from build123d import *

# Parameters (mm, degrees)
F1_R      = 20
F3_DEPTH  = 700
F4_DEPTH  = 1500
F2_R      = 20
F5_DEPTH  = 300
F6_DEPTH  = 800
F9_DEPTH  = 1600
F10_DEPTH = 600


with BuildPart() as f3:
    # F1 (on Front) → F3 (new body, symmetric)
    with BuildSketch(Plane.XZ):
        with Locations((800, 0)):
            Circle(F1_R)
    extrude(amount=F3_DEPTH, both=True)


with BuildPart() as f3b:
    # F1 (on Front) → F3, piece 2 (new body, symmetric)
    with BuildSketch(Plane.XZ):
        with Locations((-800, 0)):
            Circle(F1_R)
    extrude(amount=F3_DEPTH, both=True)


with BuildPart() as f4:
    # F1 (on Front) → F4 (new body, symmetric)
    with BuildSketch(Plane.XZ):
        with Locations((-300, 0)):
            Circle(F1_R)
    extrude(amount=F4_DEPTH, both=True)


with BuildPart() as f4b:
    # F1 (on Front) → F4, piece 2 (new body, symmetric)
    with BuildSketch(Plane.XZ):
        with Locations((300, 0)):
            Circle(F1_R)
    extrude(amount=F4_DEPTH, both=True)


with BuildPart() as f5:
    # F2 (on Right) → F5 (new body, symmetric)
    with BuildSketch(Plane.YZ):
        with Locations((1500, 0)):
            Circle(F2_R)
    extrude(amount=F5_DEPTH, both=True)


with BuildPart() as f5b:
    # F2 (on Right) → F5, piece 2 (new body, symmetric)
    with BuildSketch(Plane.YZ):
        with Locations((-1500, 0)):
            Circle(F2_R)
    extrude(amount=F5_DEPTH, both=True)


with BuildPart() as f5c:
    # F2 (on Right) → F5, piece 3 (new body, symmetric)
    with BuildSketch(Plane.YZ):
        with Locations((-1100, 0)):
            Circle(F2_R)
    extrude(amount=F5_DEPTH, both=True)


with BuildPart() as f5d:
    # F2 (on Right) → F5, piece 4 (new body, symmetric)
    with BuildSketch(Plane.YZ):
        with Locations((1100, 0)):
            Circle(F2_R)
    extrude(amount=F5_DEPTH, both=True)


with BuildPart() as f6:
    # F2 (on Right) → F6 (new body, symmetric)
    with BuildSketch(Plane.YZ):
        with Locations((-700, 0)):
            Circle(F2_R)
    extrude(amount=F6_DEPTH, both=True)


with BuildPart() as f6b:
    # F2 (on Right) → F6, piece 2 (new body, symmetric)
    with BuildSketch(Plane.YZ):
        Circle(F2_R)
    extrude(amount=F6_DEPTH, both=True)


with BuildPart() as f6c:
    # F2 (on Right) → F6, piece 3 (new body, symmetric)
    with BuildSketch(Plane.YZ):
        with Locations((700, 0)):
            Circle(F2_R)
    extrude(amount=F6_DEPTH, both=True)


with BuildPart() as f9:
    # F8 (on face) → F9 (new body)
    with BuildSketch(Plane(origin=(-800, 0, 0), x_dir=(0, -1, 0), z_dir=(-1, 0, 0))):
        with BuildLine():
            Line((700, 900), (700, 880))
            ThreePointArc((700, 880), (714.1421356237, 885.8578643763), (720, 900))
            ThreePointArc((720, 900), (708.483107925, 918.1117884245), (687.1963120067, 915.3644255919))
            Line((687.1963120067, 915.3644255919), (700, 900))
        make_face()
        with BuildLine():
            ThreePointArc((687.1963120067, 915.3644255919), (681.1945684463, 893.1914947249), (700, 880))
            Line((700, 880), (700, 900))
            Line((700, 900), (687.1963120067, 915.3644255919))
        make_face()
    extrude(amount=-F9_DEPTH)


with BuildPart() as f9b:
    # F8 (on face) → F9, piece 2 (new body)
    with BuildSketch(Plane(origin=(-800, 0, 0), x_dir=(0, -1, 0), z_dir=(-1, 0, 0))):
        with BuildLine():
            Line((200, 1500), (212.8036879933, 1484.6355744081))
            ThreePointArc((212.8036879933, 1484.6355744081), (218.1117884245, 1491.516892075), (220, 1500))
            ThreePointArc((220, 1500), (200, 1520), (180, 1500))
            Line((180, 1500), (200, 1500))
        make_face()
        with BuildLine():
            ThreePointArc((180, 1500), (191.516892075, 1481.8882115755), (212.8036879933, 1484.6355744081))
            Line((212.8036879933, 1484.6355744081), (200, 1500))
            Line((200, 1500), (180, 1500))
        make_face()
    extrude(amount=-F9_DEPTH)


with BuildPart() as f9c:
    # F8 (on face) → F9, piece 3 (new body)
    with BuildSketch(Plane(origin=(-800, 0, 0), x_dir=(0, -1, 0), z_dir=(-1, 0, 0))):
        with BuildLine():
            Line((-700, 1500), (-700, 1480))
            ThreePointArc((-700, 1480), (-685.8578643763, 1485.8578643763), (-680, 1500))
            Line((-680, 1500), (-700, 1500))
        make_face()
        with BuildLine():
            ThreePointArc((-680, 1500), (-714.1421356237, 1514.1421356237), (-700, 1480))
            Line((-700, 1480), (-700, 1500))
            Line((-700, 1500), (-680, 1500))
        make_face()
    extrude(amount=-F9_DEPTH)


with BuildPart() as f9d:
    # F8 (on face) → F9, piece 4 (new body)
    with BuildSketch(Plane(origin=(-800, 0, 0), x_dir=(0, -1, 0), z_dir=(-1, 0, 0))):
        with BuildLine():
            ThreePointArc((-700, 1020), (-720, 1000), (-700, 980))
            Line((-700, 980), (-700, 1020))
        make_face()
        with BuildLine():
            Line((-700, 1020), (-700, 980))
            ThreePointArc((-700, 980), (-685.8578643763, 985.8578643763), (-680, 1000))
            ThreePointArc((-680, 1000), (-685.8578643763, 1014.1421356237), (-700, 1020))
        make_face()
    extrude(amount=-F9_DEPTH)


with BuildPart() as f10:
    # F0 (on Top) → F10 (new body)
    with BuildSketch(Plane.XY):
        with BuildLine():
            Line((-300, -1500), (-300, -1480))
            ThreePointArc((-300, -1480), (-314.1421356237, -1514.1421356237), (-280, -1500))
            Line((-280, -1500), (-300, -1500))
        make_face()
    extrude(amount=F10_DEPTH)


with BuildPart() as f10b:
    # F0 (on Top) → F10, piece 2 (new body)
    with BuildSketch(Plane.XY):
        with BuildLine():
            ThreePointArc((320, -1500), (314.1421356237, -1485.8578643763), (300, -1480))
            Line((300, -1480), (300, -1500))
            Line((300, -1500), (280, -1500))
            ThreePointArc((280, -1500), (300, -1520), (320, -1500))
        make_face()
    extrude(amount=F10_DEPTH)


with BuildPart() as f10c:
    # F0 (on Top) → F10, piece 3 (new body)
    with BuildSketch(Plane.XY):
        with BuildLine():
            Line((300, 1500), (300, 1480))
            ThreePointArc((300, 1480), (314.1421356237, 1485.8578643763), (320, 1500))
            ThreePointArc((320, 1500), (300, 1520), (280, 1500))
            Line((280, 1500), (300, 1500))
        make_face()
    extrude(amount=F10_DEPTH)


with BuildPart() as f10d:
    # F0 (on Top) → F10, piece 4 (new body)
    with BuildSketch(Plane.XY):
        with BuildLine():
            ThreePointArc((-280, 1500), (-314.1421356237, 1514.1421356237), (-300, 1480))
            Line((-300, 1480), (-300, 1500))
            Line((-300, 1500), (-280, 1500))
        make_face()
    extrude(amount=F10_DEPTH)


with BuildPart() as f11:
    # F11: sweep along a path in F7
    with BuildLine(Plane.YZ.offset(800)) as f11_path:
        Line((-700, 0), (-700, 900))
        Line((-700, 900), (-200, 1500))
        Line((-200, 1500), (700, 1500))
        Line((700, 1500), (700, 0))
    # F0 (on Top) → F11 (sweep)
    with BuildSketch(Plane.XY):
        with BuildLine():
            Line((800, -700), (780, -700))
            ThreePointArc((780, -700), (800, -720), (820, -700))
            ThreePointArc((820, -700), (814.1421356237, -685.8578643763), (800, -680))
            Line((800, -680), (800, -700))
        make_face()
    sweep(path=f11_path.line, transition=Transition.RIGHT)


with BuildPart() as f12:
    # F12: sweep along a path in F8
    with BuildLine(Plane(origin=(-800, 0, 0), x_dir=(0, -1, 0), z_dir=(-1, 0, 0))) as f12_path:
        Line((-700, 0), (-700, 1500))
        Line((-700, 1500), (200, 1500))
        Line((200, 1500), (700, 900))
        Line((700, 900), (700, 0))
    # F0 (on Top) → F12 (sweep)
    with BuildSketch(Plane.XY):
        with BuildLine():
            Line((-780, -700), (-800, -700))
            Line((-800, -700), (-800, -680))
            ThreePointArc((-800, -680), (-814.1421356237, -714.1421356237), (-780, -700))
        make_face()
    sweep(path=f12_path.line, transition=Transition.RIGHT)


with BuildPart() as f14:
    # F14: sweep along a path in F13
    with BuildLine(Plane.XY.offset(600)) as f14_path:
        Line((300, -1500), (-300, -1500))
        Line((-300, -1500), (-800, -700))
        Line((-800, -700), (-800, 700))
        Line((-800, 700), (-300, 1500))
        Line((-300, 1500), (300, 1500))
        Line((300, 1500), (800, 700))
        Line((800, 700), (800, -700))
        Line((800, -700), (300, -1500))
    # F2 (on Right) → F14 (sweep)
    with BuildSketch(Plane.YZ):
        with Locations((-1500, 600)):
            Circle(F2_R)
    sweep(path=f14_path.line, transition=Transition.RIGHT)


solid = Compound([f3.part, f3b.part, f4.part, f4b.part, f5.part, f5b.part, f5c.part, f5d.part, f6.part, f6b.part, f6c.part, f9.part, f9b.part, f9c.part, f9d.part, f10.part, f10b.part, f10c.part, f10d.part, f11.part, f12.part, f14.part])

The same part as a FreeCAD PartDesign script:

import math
import FreeCAD as App
import Part
import Sketcher

V = App.Vector
Q = App.Units.Quantity

doc = App.newDocument("Part")
params = doc.addObject("Spreadsheet::Sheet", "Params")
for row, (alias, value) in enumerate([
    ("sketch1_diameter", "40 mm"),
    ("pad1_length", "1400 mm"),
    ("sketch2_diameter", "40 mm"),
    ("pad2_length", "1400 mm"),
    ("sketch3_diameter", "40 mm"),
    ("pad3_length", "3000 mm"),
    ("sketch4_diameter", "40 mm"),
    ("pad4_length", "3000 mm"),
    ("sketch5_diameter", "40 mm"),
    ("pad5_length", "600 mm"),
    ("sketch6_diameter", "40 mm"),
    ("pad6_length", "600 mm"),
    ("sketch7_diameter", "40 mm"),
    ("pad7_length", "600 mm"),
    ("sketch8_diameter", "40 mm"),
    ("pad8_length", "600 mm"),
    ("sketch9_diameter", "40 mm"),
    ("pad9_length", "1600 mm"),
    ("sketch10_diameter", "40 mm"),
    ("pad10_length", "1600 mm"),
    ("sketch11_diameter", "40 mm"),
    ("pad11_length", "1600 mm"),
    ("sketch12_radius", "20 mm"),
    ("pad12_length", "1600 mm"),
    ("sketch13_radius", "20 mm"),
    ("pad13_length", "1600 mm"),
    ("sketch14_radius", "20 mm"),
    ("pad14_length", "1600 mm"),
    ("sketch15_radius", "20 mm"),
    ("pad15_length", "1600 mm"),
    ("sketch16_radius", "20 mm"),
    ("pad16_length", "600 mm"),
    ("sketch17_radius", "20 mm"),
    ("pad17_length", "600 mm"),
    ("sketch18_radius", "20 mm"),
    ("pad18_length", "600 mm"),
    ("sketch19_radius", "20 mm"),
    ("pad19_length", "600 mm"),
    ("sketch20_radius", "20 mm"),
    ("sketch21_width", "900 mm"),
    ("sketch21_height", "1500 mm"),
    ("sketch22_radius", "20 mm"),
    ("sketch23_width", "900 mm"),
    ("sketch23_height", "1500 mm"),
    ("sketch24_diameter", "40 mm"),
    ("sketch25_width", "600 mm"),
    ("sketch25_height", "1400 mm"),
], start=1):
    params.set(f"A{row}", alias)
    params.set(f"B{row}", "=" + value)
    params.setAlias(f"B{row}", alias)

body = doc.addObject("PartDesign::Body", "Body")

sketch1 = doc.addObject("Sketcher::SketchObject", "Sketch")
body.addObject(sketch1)
sketch1.AttachmentSupport = (doc.XZ_Plane, [""])
sketch1.MapMode = "FlatFace"
sketch1.addGeometry(Part.Circle(V(800, 0, 0), V(0, 0, 1), 20), False)
sketch1.addConstraint(Sketcher.Constraint("PointOnObject", 0, 3, -1))
sketch1.addConstraint(Sketcher.Constraint("Diameter", 0, Q("40 mm")))
sketch1.addConstraint(Sketcher.Constraint("DistanceX", -1, 1, 0, 3, Q("800 mm")))
sketch1.setExpression("Constraints[1]", "Params.sketch1_diameter")
pad1 = doc.addObject("PartDesign::Pad", "Pad")
body.addObject(pad1)
pad1.Profile = sketch1
pad1.setExpression("Length", "Params.pad1_length")
pad1.Midplane = True
body2 = doc.addObject("PartDesign::Body", "Body001")

sketch2 = doc.addObject("Sketcher::SketchObject", "Sketch001")
body2.addObject(sketch2)
sketch2.AttachmentSupport = (doc.getObject("XZ_Plane001"), [""])
sketch2.MapMode = "FlatFace"
sketch2.addGeometry(Part.Circle(V(-800, 0, 0), V(0, 0, 1), 20), False)
sketch2.addConstraint(Sketcher.Constraint("PointOnObject", 0, 3, -1))
sketch2.addConstraint(Sketcher.Constraint("Diameter", 0, Q("40 mm")))
sketch2.addConstraint(Sketcher.Constraint("DistanceX", 0, 3, -1, 1, Q("800 mm")))
sketch2.setExpression("Constraints[1]", "Params.sketch2_diameter")
pad2 = doc.addObject("PartDesign::Pad", "Pad001")
body2.addObject(pad2)
pad2.Profile = sketch2
pad2.setExpression("Length", "Params.pad2_length")
pad2.Midplane = True
body3 = doc.addObject("PartDesign::Body", "Body002")

sketch3 = doc.addObject("Sketcher::SketchObject", "Sketch002")
body3.addObject(sketch3)
sketch3.AttachmentSupport = (doc.getObject("XZ_Plane002"), [""])
sketch3.MapMode = "FlatFace"
sketch3.addGeometry(Part.Circle(V(-300, 0, 0), V(0, 0, 1), 20), False)
sketch3.addConstraint(Sketcher.Constraint("PointOnObject", 0, 3, -1))
sketch3.addConstraint(Sketcher.Constraint("Diameter", 0, Q("40 mm")))
sketch3.addConstraint(Sketcher.Constraint("DistanceX", 0, 3, -1, 1, Q("300 mm")))
sketch3.setExpression("Constraints[1]", "Params.sketch3_diameter")
pad3 = doc.addObject("PartDesign::Pad", "Pad002")
body3.addObject(pad3)
pad3.Profile = sketch3
pad3.setExpression("Length", "Params.pad3_length")
pad3.Midplane = True
body4 = doc.addObject("PartDesign::Body", "Body003")

sketch4 = doc.addObject("Sketcher::SketchObject", "Sketch003")
body4.addObject(sketch4)
sketch4.AttachmentSupport = (doc.getObject("XZ_Plane003"), [""])
sketch4.MapMode = "FlatFace"
sketch4.addGeometry(Part.Circle(V(300, 0, 0), V(0, 0, 1), 20), False)
sketch4.addConstraint(Sketcher.Constraint("PointOnObject", 0, 3, -1))
sketch4.addConstraint(Sketcher.Constraint("Diameter", 0, Q("40 mm")))
sketch4.addConstraint(Sketcher.Constraint("DistanceX", -1, 1, 0, 3, Q("300 mm")))
sketch4.setExpression("Constraints[1]", "Params.sketch4_diameter")
pad4 = doc.addObject("PartDesign::Pad", "Pad003")
body4.addObject(pad4)
pad4.Profile = sketch4
pad4.setExpression("Length", "Params.pad4_length")
pad4.Midplane = True
body5 = doc.addObject("PartDesign::Body", "Body004")

sketch5 = doc.addObject("Sketcher::SketchObject", "Sketch004")
body5.addObject(sketch5)
sketch5.AttachmentSupport = (doc.getObject("YZ_Plane004"), [""])
sketch5.MapMode = "FlatFace"
sketch5.addGeometry(Part.Circle(V(1500, 0, 0), V(0, 0, 1), 20), False)
sketch5.addConstraint(Sketcher.Constraint("PointOnObject", 0, 3, -1))
sketch5.addConstraint(Sketcher.Constraint("Diameter", 0, Q("40 mm")))
sketch5.addConstraint(Sketcher.Constraint("DistanceX", -1, 1, 0, 3, Q("1500 mm")))
sketch5.setExpression("Constraints[1]", "Params.sketch5_diameter")
pad5 = doc.addObject("PartDesign::Pad", "Pad004")
body5.addObject(pad5)
pad5.Profile = sketch5
pad5.setExpression("Length", "Params.pad5_length")
pad5.Midplane = True
body6 = doc.addObject("PartDesign::Body", "Body005")

sketch6 = doc.addObject("Sketcher::SketchObject", "Sketch005")
body6.addObject(sketch6)
sketch6.AttachmentSupport = (doc.getObject("YZ_Plane005"), [""])
sketch6.MapMode = "FlatFace"
sketch6.addGeometry(Part.Circle(V(-1500, 0, 0), V(0, 0, 1), 20), False)
sketch6.addConstraint(Sketcher.Constraint("PointOnObject", 0, 3, -1))
sketch6.addConstraint(Sketcher.Constraint("Diameter", 0, Q("40 mm")))
sketch6.addConstraint(Sketcher.Constraint("DistanceX", 0, 3, -1, 1, Q("1500 mm")))
sketch6.setExpression("Constraints[1]", "Params.sketch6_diameter")
pad6 = doc.addObject("PartDesign::Pad", "Pad005")
body6.addObject(pad6)
pad6.Profile = sketch6
pad6.setExpression("Length", "Params.pad6_length")
pad6.Midplane = True
body7 = doc.addObject("PartDesign::Body", "Body006")

sketch7 = doc.addObject("Sketcher::SketchObject", "Sketch006")
body7.addObject(sketch7)
sketch7.AttachmentSupport = (doc.getObject("YZ_Plane006"), [""])
sketch7.MapMode = "FlatFace"
sketch7.addGeometry(Part.Circle(V(-1100, 0, 0), V(0, 0, 1), 20), False)
sketch7.addConstraint(Sketcher.Constraint("PointOnObject", 0, 3, -1))
sketch7.addConstraint(Sketcher.Constraint("Diameter", 0, Q("40 mm")))
sketch7.addConstraint(Sketcher.Constraint("DistanceX", 0, 3, -1, 1, Q("1100 mm")))
sketch7.setExpression("Constraints[1]", "Params.sketch7_diameter")
pad7 = doc.addObject("PartDesign::Pad", "Pad006")
body7.addObject(pad7)
pad7.Profile = sketch7
pad7.setExpression("Length", "Params.pad7_length")
pad7.Midplane = True
body8 = doc.addObject("PartDesign::Body", "Body007")

sketch8 = doc.addObject("Sketcher::SketchObject", "Sketch007")
body8.addObject(sketch8)
sketch8.AttachmentSupport = (doc.getObject("YZ_Plane007"), [""])
sketch8.MapMode = "FlatFace"
sketch8.addGeometry(Part.Circle(V(1100, 0, 0), V(0, 0, 1), 20), False)
sketch8.addConstraint(Sketcher.Constraint("PointOnObject", 0, 3, -1))
sketch8.addConstraint(Sketcher.Constraint("Diameter", 0, Q("40 mm")))
sketch8.addConstraint(Sketcher.Constraint("DistanceX", -1, 1, 0, 3, Q("1100 mm")))
sketch8.setExpression("Constraints[1]", "Params.sketch8_diameter")
pad8 = doc.addObject("PartDesign::Pad", "Pad007")
body8.addObject(pad8)
pad8.Profile = sketch8
pad8.setExpression("Length", "Params.pad8_length")
pad8.Midplane = True
body9 = doc.addObject("PartDesign::Body", "Body008")

sketch9 = doc.addObject("Sketcher::SketchObject", "Sketch008")
body9.addObject(sketch9)
sketch9.AttachmentSupport = (doc.getObject("YZ_Plane008"), [""])
sketch9.MapMode = "FlatFace"
sketch9.addGeometry(Part.Circle(V(-700, 0, 0), V(0, 0, 1), 20), False)
sketch9.addConstraint(Sketcher.Constraint("PointOnObject", 0, 3, -1))
sketch9.addConstraint(Sketcher.Constraint("Diameter", 0, Q("40 mm")))
sketch9.addConstraint(Sketcher.Constraint("DistanceX", 0, 3, -1, 1, Q("700 mm")))
sketch9.setExpression("Constraints[1]", "Params.sketch9_diameter")
pad9 = doc.addObject("PartDesign::Pad", "Pad008")
body9.addObject(pad9)
pad9.Profile = sketch9
pad9.setExpression("Length", "Params.pad9_length")
pad9.Midplane = True
body10 = doc.addObject("PartDesign::Body", "Body009")

sketch10 = doc.addObject("Sketcher::SketchObject", "Sketch009")
body10.addObject(sketch10)
sketch10.AttachmentSupport = (doc.getObject("YZ_Plane009"), [""])
sketch10.MapMode = "FlatFace"
sketch10.addGeometry(Part.Circle(V(0, 0, 0), V(0, 0, 1), 20), False)
sketch10.addConstraint(Sketcher.Constraint("Coincident", 0, 3, -1, 1))
sketch10.addConstraint(Sketcher.Constraint("Diameter", 0, Q("40 mm")))
sketch10.setExpression("Constraints[1]", "Params.sketch10_diameter")
pad10 = doc.addObject("PartDesign::Pad", "Pad009")
body10.addObject(pad10)
pad10.Profile = sketch10
pad10.setExpression("Length", "Params.pad10_length")
pad10.Midplane = True
body11 = doc.addObject("PartDesign::Body", "Body010")

sketch11 = doc.addObject("Sketcher::SketchObject", "Sketch010")
body11.addObject(sketch11)
sketch11.AttachmentSupport = (doc.getObject("YZ_Plane010"), [""])
sketch11.MapMode = "FlatFace"
sketch11.addGeometry(Part.Circle(V(700, 0, 0), V(0, 0, 1), 20), False)
sketch11.addConstraint(Sketcher.Constraint("PointOnObject", 0, 3, -1))
sketch11.addConstraint(Sketcher.Constraint("Diameter", 0, Q("40 mm")))
sketch11.addConstraint(Sketcher.Constraint("DistanceX", -1, 1, 0, 3, Q("700 mm")))
sketch11.setExpression("Constraints[1]", "Params.sketch11_diameter")
pad11 = doc.addObject("PartDesign::Pad", "Pad010")
body11.addObject(pad11)
pad11.Profile = sketch11
pad11.setExpression("Length", "Params.pad11_length")
pad11.Midplane = True
body12 = doc.addObject("PartDesign::Body", "Body011")

sketch12 = doc.addObject("Sketcher::SketchObject", "Sketch011")
body12.addObject(sketch12)
sketch12.AttachmentSupport = (doc.getObject("YZ_Plane011"), [""])
sketch12.MapMode = "FlatFace"
sketch12.AttachmentOffset = App.Placement(V(0, 0, -800), App.Rotation())
sketch12.addGeometry(Part.ArcOfCircle(Part.Circle(V(-700, 900, 0), V(0, 0, 1), 20), math.radians(50), math.radians(180)), False)
sketch12.addGeometry(Part.ArcOfCircle(Part.Circle(V(-700, 900, 0), V(0, 0, 1), 20), math.radians(180), math.radians(410)), False)
sketch12.addConstraint(Sketcher.Constraint("Tangent", 0, 1, 1, 2))
sketch12.addConstraint(Sketcher.Constraint("Coincident", 1, 1, 0, 2))
sketch12.addConstraint(Sketcher.Constraint("Horizontal", 0, 3, 1, 1))
sketch12.addConstraint(Sketcher.Constraint("Radius", 0, Q("20 mm")))
sketch12.addConstraint(Sketcher.Constraint("DistanceX", 0, 3, -1, 1, Q("700 mm")))
sketch12.addConstraint(Sketcher.Constraint("DistanceY", -1, 1, 0, 3, Q("900 mm")))
sketch12.addConstraint(Sketcher.Constraint("DistanceX", 0, 1, -1, 1, Q("687.196312 mm")))
sketch12.setExpression("Constraints[3]", "Params.sketch12_radius")
pad12 = doc.addObject("PartDesign::Pad", "Pad011")
body12.addObject(pad12)
pad12.Profile = sketch12
pad12.setExpression("Length", "Params.pad12_length")
body13 = doc.addObject("PartDesign::Body", "Body012")

sketch13 = doc.addObject("Sketcher::SketchObject", "Sketch012")
body13.addObject(sketch13)
sketch13.AttachmentSupport = (doc.getObject("YZ_Plane012"), [""])
sketch13.MapMode = "FlatFace"
sketch13.AttachmentOffset = App.Placement(V(0, 0, -800), App.Rotation())
sketch13.addGeometry(Part.ArcOfCircle(Part.Circle(V(-200, 1500, 0), V(0, 0, 1), 20), math.radians(180), math.radians(230)), False)
sketch13.addGeometry(Part.ArcOfCircle(Part.Circle(V(-200, 1500, 0), V(0, 0, 1), 20), math.radians(0), math.radians(180)), False)
sketch13.addGeometry(Part.ArcOfCircle(Part.Circle(V(-200, 1500, 0), V(0, 0, 1), 20), math.radians(-130), math.radians(0)), False)
sketch13.addConstraint(Sketcher.Constraint("Tangent", 0, 1, 1, 2))
sketch13.addConstraint(Sketcher.Constraint("Tangent", 1, 1, 2, 2))
sketch13.addConstraint(Sketcher.Constraint("Tangent", 2, 1, 0, 2))
sketch13.addConstraint(Sketcher.Constraint("Horizontal", 2, 3, 0, 1))
sketch13.addConstraint(Sketcher.Constraint("Horizontal", 0, 1, 1, 1))
sketch13.addConstraint(Sketcher.Constraint("Radius", 0, Q("20 mm")))
sketch13.addConstraint(Sketcher.Constraint("DistanceX", 0, 3, -1, 1, Q("200 mm")))
sketch13.addConstraint(Sketcher.Constraint("DistanceY", -1, 1, 0, 3, Q("1500 mm")))
sketch13.addConstraint(Sketcher.Constraint("DistanceX", 2, 1, -1, 1, Q("212.803688 mm")))
sketch13.setExpression("Constraints[5]", "Params.sketch13_radius")
pad13 = doc.addObject("PartDesign::Pad", "Pad012")
body13.addObject(pad13)
pad13.Profile = sketch13
pad13.setExpression("Length", "Params.pad13_length")
body14 = doc.addObject("PartDesign::Body", "Body013")

sketch14 = doc.addObject("Sketcher::SketchObject", "Sketch013")
body14.addObject(sketch14)
sketch14.AttachmentSupport = (doc.getObject("YZ_Plane013"), [""])
sketch14.MapMode = "FlatFace"
sketch14.AttachmentOffset = App.Placement(V(0, 0, -800), App.Rotation())
sketch14.addGeometry(Part.ArcOfCircle(Part.Circle(V(700, 1500, 0), V(0, 0, 1), 20), math.radians(180), math.radians(270)), False)
sketch14.addGeometry(Part.ArcOfCircle(Part.Circle(V(700, 1500, 0), V(0, 0, 1), 20), math.radians(-90), math.radians(180)), False)
sketch14.addConstraint(Sketcher.Constraint("Tangent", 0, 1, 1, 2))
sketch14.addConstraint(Sketcher.Constraint("Coincident", 1, 1, 0, 2))
sketch14.addConstraint(Sketcher.Constraint("Horizontal", 1, 3, 0, 1))
sketch14.addConstraint(Sketcher.Constraint("Vertical", 0, 3, 1, 1))
sketch14.addConstraint(Sketcher.Constraint("Radius", 0, Q("20 mm")))
sketch14.addConstraint(Sketcher.Constraint("DistanceX", -1, 1, 0, 3, Q("700 mm")))
sketch14.addConstraint(Sketcher.Constraint("DistanceY", -1, 1, 0, 3, Q("1500 mm")))
sketch14.setExpression("Constraints[4]", "Params.sketch14_radius")
pad14 = doc.addObject("PartDesign::Pad", "Pad013")
body14.addObject(pad14)
pad14.Profile = sketch14
pad14.setExpression("Length", "Params.pad14_length")
body15 = doc.addObject("PartDesign::Body", "Body014")

sketch15 = doc.addObject("Sketcher::SketchObject", "Sketch014")
body15.addObject(sketch15)
sketch15.AttachmentSupport = (doc.getObject("YZ_Plane014"), [""])
sketch15.MapMode = "FlatFace"
sketch15.AttachmentOffset = App.Placement(V(0, 0, -800), App.Rotation())
sketch15.addGeometry(Part.ArcOfCircle(Part.Circle(V(700, 1000, 0), V(0, 0, 1), 20), math.radians(-90), math.radians(90)), False)
sketch15.addGeometry(Part.ArcOfCircle(Part.Circle(V(700, 1000, 0), V(0, 0, 1), 20), math.radians(180), math.radians(270)), False)
sketch15.addGeometry(Part.ArcOfCircle(Part.Circle(V(700, 1000, 0), V(0, 0, 1), 20), math.radians(90), math.radians(180)), False)
sketch15.addConstraint(Sketcher.Constraint("Tangent", 0, 1, 1, 2))
sketch15.addConstraint(Sketcher.Constraint("Tangent", 1, 1, 2, 2))
sketch15.addConstraint(Sketcher.Constraint("Tangent", 2, 1, 0, 2))
sketch15.addConstraint(Sketcher.Constraint("Horizontal", 2, 3, 1, 1))
sketch15.addConstraint(Sketcher.Constraint("Vertical", 2, 3, 0, 1))
sketch15.addConstraint(Sketcher.Constraint("Vertical", 0, 1, 2, 1))
sketch15.addConstraint(Sketcher.Constraint("Radius", 0, Q("20 mm")))
sketch15.addConstraint(Sketcher.Constraint("DistanceX", -1, 1, 0, 3, Q("700 mm")))
sketch15.addConstraint(Sketcher.Constraint("DistanceY", -1, 1, 0, 3, Q("1000 mm")))
sketch15.setExpression("Constraints[6]", "Params.sketch15_radius")
pad15 = doc.addObject("PartDesign::Pad", "Pad014")
body15.addObject(pad15)
pad15.Profile = sketch15
pad15.setExpression("Length", "Params.pad15_length")
body16 = doc.addObject("PartDesign::Body", "Body015")

sketch16 = doc.addObject("Sketcher::SketchObject", "Sketch015")
body16.addObject(sketch16)
sketch16.AttachmentSupport = (doc.getObject("XY_Plane015"), [""])
sketch16.MapMode = "FlatFace"
sketch16.addGeometry(Part.LineSegment(V(-300, -1500, 0), V(-300, -1480, 0)), False)
sketch16.addGeometry(Part.ArcOfCircle(Part.Circle(V(-300, -1500, 0), V(0, 0, 1), 20), math.radians(90), math.radians(360)), False)
sketch16.addGeometry(Part.LineSegment(V(-280, -1500, 0), V(-300, -1500, 0)), False)
sketch16.addConstraint(Sketcher.Constraint("Coincident", 0, 2, 1, 1))
sketch16.addConstraint(Sketcher.Constraint("Coincident", 1, 2, 2, 1))
sketch16.addConstraint(Sketcher.Constraint("Coincident", 2, 2, 0, 1))
sketch16.addConstraint(Sketcher.Constraint("Vertical", 0))
sketch16.addConstraint(Sketcher.Constraint("Horizontal", 2))
sketch16.addConstraint(Sketcher.Constraint("Coincident", 2, 2, 1, 3))
sketch16.addConstraint(Sketcher.Constraint("Radius", 1, Q("20 mm")))
sketch16.addConstraint(Sketcher.Constraint("DistanceX", 1, 3, -1, 1, Q("300 mm")))
sketch16.addConstraint(Sketcher.Constraint("DistanceY", 1, 3, -1, 1, Q("1500 mm")))
sketch16.setExpression("Constraints[6]", "Params.sketch16_radius")
pad16 = doc.addObject("PartDesign::Pad", "Pad015")
body16.addObject(pad16)
pad16.Profile = sketch16
pad16.setExpression("Length", "Params.pad16_length")
body17 = doc.addObject("PartDesign::Body", "Body016")

sketch17 = doc.addObject("Sketcher::SketchObject", "Sketch016")
body17.addObject(sketch17)
sketch17.AttachmentSupport = (doc.getObject("XY_Plane016"), [""])
sketch17.MapMode = "FlatFace"
sketch17.addGeometry(Part.ArcOfCircle(Part.Circle(V(300, -1500, 0), V(0, 0, 1), 20), math.radians(0), math.radians(90)), False)
sketch17.addGeometry(Part.LineSegment(V(300, -1480, 0), V(300, -1500, 0)), False)
sketch17.addGeometry(Part.LineSegment(V(300, -1500, 0), V(280, -1500, 0)), False)
sketch17.addGeometry(Part.ArcOfCircle(Part.Circle(V(300, -1500, 0), V(0, 0, 1), 20), math.radians(180), math.radians(360)), False)
sketch17.addConstraint(Sketcher.Constraint("Coincident", 0, 2, 1, 1))
sketch17.addConstraint(Sketcher.Constraint("Coincident", 1, 2, 2, 1))
sketch17.addConstraint(Sketcher.Constraint("Coincident", 2, 2, 3, 1))
sketch17.addConstraint(Sketcher.Constraint("Tangent", 3, 2, 0, 1))
sketch17.addConstraint(Sketcher.Constraint("Vertical", 1))
sketch17.addConstraint(Sketcher.Constraint("Horizontal", 2))
sketch17.addConstraint(Sketcher.Constraint("Coincident", 1, 2, 0, 3))
sketch17.addConstraint(Sketcher.Constraint("Equal", 0, 3))
sketch17.addConstraint(Sketcher.Constraint("Horizontal", 2, 2, 3, 2))
sketch17.addConstraint(Sketcher.Constraint("Radius", 0, Q("20 mm")))
sketch17.addConstraint(Sketcher.Constraint("DistanceX", -1, 1, 0, 3, Q("300 mm")))
sketch17.addConstraint(Sketcher.Constraint("DistanceY", 0, 3, -1, 1, Q("1500 mm")))
sketch17.setExpression("Constraints[9]", "Params.sketch17_radius")
pad17 = doc.addObject("PartDesign::Pad", "Pad016")
body17.addObject(pad17)
pad17.Profile = sketch17
pad17.setExpression("Length", "Params.pad17_length")
body18 = doc.addObject("PartDesign::Body", "Body017")

sketch18 = doc.addObject("Sketcher::SketchObject", "Sketch017")
body18.addObject(sketch18)
sketch18.AttachmentSupport = (doc.getObject("XY_Plane017"), [""])
sketch18.MapMode = "FlatFace"
sketch18.addGeometry(Part.LineSegment(V(300, 1500, 0), V(300, 1480, 0)), False)
sketch18.addGeometry(Part.ArcOfCircle(Part.Circle(V(300, 1500, 0), V(0, 0, 1), 20), math.radians(-90), math.radians(0)), False)
sketch18.addGeometry(Part.ArcOfCircle(Part.Circle(V(300, 1500, 0), V(0, 0, 1), 20), math.radians(0), math.radians(180)), False)
sketch18.addGeometry(Part.LineSegment(V(280, 1500, 0), V(300, 1500, 0)), False)
sketch18.addConstraint(Sketcher.Constraint("Coincident", 0, 2, 1, 1))
sketch18.addConstraint(Sketcher.Constraint("Tangent", 1, 2, 2, 1))
sketch18.addConstraint(Sketcher.Constraint("Coincident", 2, 2, 3, 1))
sketch18.addConstraint(Sketcher.Constraint("Coincident", 3, 2, 0, 1))
sketch18.addConstraint(Sketcher.Constraint("Vertical", 0))
sketch18.addConstraint(Sketcher.Constraint("Horizontal", 3))
sketch18.addConstraint(Sketcher.Constraint("Coincident", 3, 2, 1, 3))
sketch18.addConstraint(Sketcher.Constraint("Equal", 1, 2))
sketch18.addConstraint(Sketcher.Constraint("Horizontal", 2, 3, 1, 2))
sketch18.addConstraint(Sketcher.Constraint("Radius", 1, Q("20 mm")))
sketch18.addConstraint(Sketcher.Constraint("DistanceX", -1, 1, 1, 3, Q("300 mm")))
sketch18.addConstraint(Sketcher.Constraint("DistanceY", -1, 1, 1, 3, Q("1500 mm")))
sketch18.setExpression("Constraints[9]", "Params.sketch18_radius")
pad18 = doc.addObject("PartDesign::Pad", "Pad017")
body18.addObject(pad18)
pad18.Profile = sketch18
pad18.setExpression("Length", "Params.pad18_length")
body19 = doc.addObject("PartDesign::Body", "Body018")

sketch19 = doc.addObject("Sketcher::SketchObject", "Sketch018")
body19.addObject(sketch19)
sketch19.AttachmentSupport = (doc.getObject("XY_Plane018"), [""])
sketch19.MapMode = "FlatFace"
sketch19.addGeometry(Part.ArcOfCircle(Part.Circle(V(-300, 1500, 0), V(0, 0, 1), 20), math.radians(0), math.radians(270)), False)
sketch19.addGeometry(Part.LineSegment(V(-300, 1480, 0), V(-300, 1500, 0)), False)
sketch19.addGeometry(Part.LineSegment(V(-300, 1500, 0), V(-280, 1500, 0)), False)
sketch19.addConstraint(Sketcher.Constraint("Coincident", 0, 2, 1, 1))
sketch19.addConstraint(Sketcher.Constraint("Coincident", 1, 2, 2, 1))
sketch19.addConstraint(Sketcher.Constraint("Coincident", 2, 2, 0, 1))
sketch19.addConstraint(Sketcher.Constraint("Vertical", 1))
sketch19.addConstraint(Sketcher.Constraint("Horizontal", 2))
sketch19.addConstraint(Sketcher.Constraint("Coincident", 1, 2, 0, 3))
sketch19.addConstraint(Sketcher.Constraint("Radius", 0, Q("20 mm")))
sketch19.addConstraint(Sketcher.Constraint("DistanceX", 0, 3, -1, 1, Q("300 mm")))
sketch19.addConstraint(Sketcher.Constraint("DistanceY", -1, 1, 0, 3, Q("1500 mm")))
sketch19.setExpression("Constraints[6]", "Params.sketch19_radius")
pad19 = doc.addObject("PartDesign::Pad", "Pad018")
body19.addObject(pad19)
pad19.Profile = sketch19
pad19.setExpression("Length", "Params.pad19_length")
body20 = doc.addObject("PartDesign::Body", "Body019")

sketch20 = doc.addObject("Sketcher::SketchObject", "Sketch019")
body20.addObject(sketch20)
sketch20.AttachmentSupport = (doc.getObject("XY_Plane019"), [""])
sketch20.MapMode = "FlatFace"
sketch20.addGeometry(Part.LineSegment(V(800, -700, 0), V(780, -700, 0)), False)
sketch20.addGeometry(Part.ArcOfCircle(Part.Circle(V(800, -700, 0), V(0, 0, 1), 20), math.radians(180), math.radians(360)), False)
sketch20.addGeometry(Part.ArcOfCircle(Part.Circle(V(800, -700, 0), V(0, 0, 1), 20), math.radians(0), math.radians(90)), False)
sketch20.addGeometry(Part.LineSegment(V(800, -680, 0), V(800, -700, 0)), False)
sketch20.addConstraint(Sketcher.Constraint("Coincident", 0, 2, 1, 1))
sketch20.addConstraint(Sketcher.Constraint("Tangent", 1, 2, 2, 1))
sketch20.addConstraint(Sketcher.Constraint("Coincident", 2, 2, 3, 1))
sketch20.addConstraint(Sketcher.Constraint("Coincident", 3, 2, 0, 1))
sketch20.addConstraint(Sketcher.Constraint("Horizontal", 0))
sketch20.addConstraint(Sketcher.Constraint("Vertical", 3))
sketch20.addConstraint(Sketcher.Constraint("Coincident", 3, 2, 1, 3))
sketch20.addConstraint(Sketcher.Constraint("Equal", 1, 2))
sketch20.addConstraint(Sketcher.Constraint("Horizontal", 0, 2, 1, 2))
sketch20.addConstraint(Sketcher.Constraint("Radius", 1, Q("20 mm")))
sketch20.addConstraint(Sketcher.Constraint("DistanceX", -1, 1, 1, 3, Q("800 mm")))
sketch20.addConstraint(Sketcher.Constraint("DistanceY", 1, 3, -1, 1, Q("700 mm")))
sketch20.setExpression("Constraints[9]", "Params.sketch20_radius")

sketch21 = doc.addObject("Sketcher::SketchObject", "Sketch020")
body20.addObject(sketch21)
sketch21.AttachmentSupport = (doc.getObject("YZ_Plane019"), [""])
sketch21.MapMode = "FlatFace"
sketch21.AttachmentOffset = App.Placement(V(0, 0, 800), App.Rotation())
sketch21.addGeometry(Part.LineSegment(V(-700, 0, 0), V(-700, 900, 0)), False)
sketch21.addGeometry(Part.LineSegment(V(-700, 900, 0), V(-200, 1500, 0)), False)
sketch21.addGeometry(Part.LineSegment(V(-200, 1500, 0), V(700, 1500, 0)), False)
sketch21.addGeometry(Part.LineSegment(V(700, 1500, 0), V(700, 0, 0)), False)
sketch21.addConstraint(Sketcher.Constraint("Coincident", 0, 2, 1, 1))
sketch21.addConstraint(Sketcher.Constraint("Coincident", 1, 2, 2, 1))
sketch21.addConstraint(Sketcher.Constraint("Coincident", 2, 2, 3, 1))
sketch21.addConstraint(Sketcher.Constraint("Vertical", 0))
sketch21.addConstraint(Sketcher.Constraint("Horizontal", 2))
sketch21.addConstraint(Sketcher.Constraint("Vertical", 3))
sketch21.addConstraint(Sketcher.Constraint("Symmetric", 0, 1, 3, 2, -1, 1))
sketch21.addConstraint(Sketcher.Constraint("PointOnObject", 0, 1, -1))
sketch21.addConstraint(Sketcher.Constraint("Equal", 2, 0))
sketch21.addConstraint(Sketcher.Constraint("DistanceX", 2, 1, 2, 2, Q("900 mm")))
sketch21.addConstraint(Sketcher.Constraint("DistanceY", 3, 2, 3, 1, Q("1500 mm")))
sketch21.addConstraint(Sketcher.Constraint("DistanceX", 0, 1, -1, 1, Q("700 mm")))
sketch21.setExpression("Constraints[9]", "Params.sketch21_width")
sketch21.setExpression("Constraints[10]", "Params.sketch21_height")
doc.recompute()

additivepipe = doc.addObject("PartDesign::AdditivePipe", "AdditivePipe")
body20.addObject(additivepipe)
additivepipe.Profile = sketch20
additivepipe.Spine = (sketch21, ["Edge1", "Edge2", "Edge3", "Edge4"])
additivepipe.Transition = "Right corner"
body21 = doc.addObject("PartDesign::Body", "Body020")

sketch22 = doc.addObject("Sketcher::SketchObject", "Sketch021")
body21.addObject(sketch22)
sketch22.AttachmentSupport = (doc.getObject("XY_Plane020"), [""])
sketch22.MapMode = "FlatFace"
sketch22.addGeometry(Part.LineSegment(V(-780, -700, 0), V(-800, -700, 0)), False)
sketch22.addGeometry(Part.LineSegment(V(-800, -700, 0), V(-800, -680, 0)), False)
sketch22.addGeometry(Part.ArcOfCircle(Part.Circle(V(-800, -700, 0), V(0, 0, 1), 20), math.radians(90), math.radians(360)), False)
sketch22.addConstraint(Sketcher.Constraint("Coincident", 0, 2, 1, 1))
sketch22.addConstraint(Sketcher.Constraint("Coincident", 1, 2, 2, 1))
sketch22.addConstraint(Sketcher.Constraint("Coincident", 2, 2, 0, 1))
sketch22.addConstraint(Sketcher.Constraint("Horizontal", 0))
sketch22.addConstraint(Sketcher.Constraint("Vertical", 1))
sketch22.addConstraint(Sketcher.Constraint("Coincident", 0, 2, 2, 3))
sketch22.addConstraint(Sketcher.Constraint("Radius", 2, Q("20 mm")))
sketch22.addConstraint(Sketcher.Constraint("DistanceX", 2, 3, -1, 1, Q("800 mm")))
sketch22.addConstraint(Sketcher.Constraint("DistanceY", 2, 3, -1, 1, Q("700 mm")))
sketch22.setExpression("Constraints[6]", "Params.sketch22_radius")

sketch23 = doc.addObject("Sketcher::SketchObject", "Sketch022")
body21.addObject(sketch23)
sketch23.AttachmentSupport = (doc.getObject("YZ_Plane020"), [""])
sketch23.MapMode = "FlatFace"
sketch23.AttachmentOffset = App.Placement(V(0, 0, -800), App.Rotation())
sketch23.addGeometry(Part.LineSegment(V(700, 0, 0), V(700, 1500, 0)), False)
sketch23.addGeometry(Part.LineSegment(V(700, 1500, 0), V(-200, 1500, 0)), False)
sketch23.addGeometry(Part.LineSegment(V(-200, 1500, 0), V(-700, 900, 0)), False)
sketch23.addGeometry(Part.LineSegment(V(-700, 900, 0), V(-700, 0, 0)), False)
sketch23.addConstraint(Sketcher.Constraint("Coincident", 0, 2, 1, 1))
sketch23.addConstraint(Sketcher.Constraint("Coincident", 1, 2, 2, 1))
sketch23.addConstraint(Sketcher.Constraint("Coincident", 2, 2, 3, 1))
sketch23.addConstraint(Sketcher.Constraint("Vertical", 0))
sketch23.addConstraint(Sketcher.Constraint("Horizontal", 1))
sketch23.addConstraint(Sketcher.Constraint("Vertical", 3))
sketch23.addConstraint(Sketcher.Constraint("Symmetric", 0, 1, 3, 2, -1, 1))
sketch23.addConstraint(Sketcher.Constraint("PointOnObject", 0, 1, -1))
sketch23.addConstraint(Sketcher.Constraint("Equal", 1, 3))
sketch23.addConstraint(Sketcher.Constraint("DistanceX", 1, 2, 1, 1, Q("900 mm")))
sketch23.addConstraint(Sketcher.Constraint("DistanceY", 0, 1, 0, 2, Q("1500 mm")))
sketch23.addConstraint(Sketcher.Constraint("DistanceX", -1, 1, 0, 1, Q("700 mm")))
sketch23.setExpression("Constraints[9]", "Params.sketch23_width")
sketch23.setExpression("Constraints[10]", "Params.sketch23_height")
doc.recompute()

additivepipe2 = doc.addObject("PartDesign::AdditivePipe", "AdditivePipe001")
body21.addObject(additivepipe2)
additivepipe2.Profile = sketch22
additivepipe2.Spine = (sketch23, ["Edge1", "Edge2", "Edge3", "Edge4"])
additivepipe2.Transition = "Right corner"
body22 = doc.addObject("PartDesign::Body", "Body021")

sketch24 = doc.addObject("Sketcher::SketchObject", "Sketch023")
body22.addObject(sketch24)
sketch24.AttachmentSupport = (doc.getObject("YZ_Plane021"), [""])
sketch24.MapMode = "FlatFace"
sketch24.addGeometry(Part.Circle(V(-1500, 600, 0), V(0, 0, 1), 20), False)
sketch24.addConstraint(Sketcher.Constraint("Diameter", 0, Q("40 mm")))
sketch24.addConstraint(Sketcher.Constraint("DistanceX", 0, 3, -1, 1, Q("1500 mm")))
sketch24.addConstraint(Sketcher.Constraint("DistanceY", -1, 1, 0, 3, Q("600 mm")))
sketch24.setExpression("Constraints[0]", "Params.sketch24_diameter")

sketch25 = doc.addObject("Sketcher::SketchObject", "Sketch024")
body22.addObject(sketch25)
sketch25.AttachmentSupport = (doc.getObject("XY_Plane021"), [""])
sketch25.MapMode = "FlatFace"
sketch25.AttachmentOffset = App.Placement(V(0, 0, 600), App.Rotation())
sketch25.addGeometry(Part.LineSegment(V(300, -1500, 0), V(-300, -1500, 0)), False)
sketch25.addGeometry(Part.LineSegment(V(-300, -1500, 0), V(-800, -700, 0)), False)
sketch25.addGeometry(Part.LineSegment(V(-800, -700, 0), V(-800, 700, 0)), False)
sketch25.addGeometry(Part.LineSegment(V(-800, 700, 0), V(-300, 1500, 0)), False)
sketch25.addGeometry(Part.LineSegment(V(-300, 1500, 0), V(300, 1500, 0)), False)
sketch25.addGeometry(Part.LineSegment(V(300, 1500, 0), V(800, 700, 0)), False)
sketch25.addGeometry(Part.LineSegment(V(800, 700, 0), V(800, -700, 0)), False)
sketch25.addGeometry(Part.LineSegment(V(800, -700, 0), V(300, -1500, 0)), False)
sketch25.addConstraint(Sketcher.Constraint("Coincident", 0, 2, 1, 1))
sketch25.addConstraint(Sketcher.Constraint("Coincident", 1, 2, 2, 1))
sketch25.addConstraint(Sketcher.Constraint("Coincident", 2, 2, 3, 1))
sketch25.addConstraint(Sketcher.Constraint("Coincident", 3, 2, 4, 1))
sketch25.addConstraint(Sketcher.Constraint("Coincident", 4, 2, 5, 1))
sketch25.addConstraint(Sketcher.Constraint("Coincident", 5, 2, 6, 1))
sketch25.addConstraint(Sketcher.Constraint("Coincident", 6, 2, 7, 1))
sketch25.addConstraint(Sketcher.Constraint("Coincident", 7, 2, 0, 1))
sketch25.addConstraint(Sketcher.Constraint("Horizontal", 0))
sketch25.addConstraint(Sketcher.Constraint("Vertical", 2))
sketch25.addConstraint(Sketcher.Constraint("Horizontal", 4))
sketch25.addConstraint(Sketcher.Constraint("Vertical", 6))
sketch25.addConstraint(Sketcher.Constraint("Symmetric", 0, 2, 4, 2, -1, 1))
sketch25.addConstraint(Sketcher.Constraint("Symmetric", 1, 2, 5, 2, -1, 1))
sketch25.addConstraint(Sketcher.Constraint("Parallel", 3, 7))
sketch25.addConstraint(Sketcher.Constraint("Horizontal", 2, 2, 5, 2))
sketch25.addConstraint(Sketcher.Constraint("Horizontal", 1, 2, 6, 2))
sketch25.addConstraint(Sketcher.Constraint("Vertical", 0, 2, 3, 2))
sketch25.addConstraint(Sketcher.Constraint("DistanceX", 0, 2, 0, 1, Q("600 mm")))
sketch25.addConstraint(Sketcher.Constraint("DistanceY", 2, 1, 2, 2, Q("1400 mm")))
sketch25.addConstraint(Sketcher.Constraint("DistanceY", 0, 2, -1, 1, Q("1500 mm")))
sketch25.addConstraint(Sketcher.Constraint("DistanceX", 1, 2, -1, 1, Q("800 mm")))
sketch25.setExpression("Constraints[18]", "Params.sketch25_width")
sketch25.setExpression("Constraints[19]", "Params.sketch25_height")
doc.recompute()

additivepipe3 = doc.addObject("PartDesign::AdditivePipe", "AdditivePipe002")
body22.addObject(additivepipe3)
additivepipe3.Profile = sketch24
additivepipe3.Spine = (sketch25, ["Edge1", "Edge2", "Edge3", "Edge4", "Edge5", "Edge6", "Edge7", "Edge8"])
additivepipe3.Transition = "Right corner"

doc.recompute()
